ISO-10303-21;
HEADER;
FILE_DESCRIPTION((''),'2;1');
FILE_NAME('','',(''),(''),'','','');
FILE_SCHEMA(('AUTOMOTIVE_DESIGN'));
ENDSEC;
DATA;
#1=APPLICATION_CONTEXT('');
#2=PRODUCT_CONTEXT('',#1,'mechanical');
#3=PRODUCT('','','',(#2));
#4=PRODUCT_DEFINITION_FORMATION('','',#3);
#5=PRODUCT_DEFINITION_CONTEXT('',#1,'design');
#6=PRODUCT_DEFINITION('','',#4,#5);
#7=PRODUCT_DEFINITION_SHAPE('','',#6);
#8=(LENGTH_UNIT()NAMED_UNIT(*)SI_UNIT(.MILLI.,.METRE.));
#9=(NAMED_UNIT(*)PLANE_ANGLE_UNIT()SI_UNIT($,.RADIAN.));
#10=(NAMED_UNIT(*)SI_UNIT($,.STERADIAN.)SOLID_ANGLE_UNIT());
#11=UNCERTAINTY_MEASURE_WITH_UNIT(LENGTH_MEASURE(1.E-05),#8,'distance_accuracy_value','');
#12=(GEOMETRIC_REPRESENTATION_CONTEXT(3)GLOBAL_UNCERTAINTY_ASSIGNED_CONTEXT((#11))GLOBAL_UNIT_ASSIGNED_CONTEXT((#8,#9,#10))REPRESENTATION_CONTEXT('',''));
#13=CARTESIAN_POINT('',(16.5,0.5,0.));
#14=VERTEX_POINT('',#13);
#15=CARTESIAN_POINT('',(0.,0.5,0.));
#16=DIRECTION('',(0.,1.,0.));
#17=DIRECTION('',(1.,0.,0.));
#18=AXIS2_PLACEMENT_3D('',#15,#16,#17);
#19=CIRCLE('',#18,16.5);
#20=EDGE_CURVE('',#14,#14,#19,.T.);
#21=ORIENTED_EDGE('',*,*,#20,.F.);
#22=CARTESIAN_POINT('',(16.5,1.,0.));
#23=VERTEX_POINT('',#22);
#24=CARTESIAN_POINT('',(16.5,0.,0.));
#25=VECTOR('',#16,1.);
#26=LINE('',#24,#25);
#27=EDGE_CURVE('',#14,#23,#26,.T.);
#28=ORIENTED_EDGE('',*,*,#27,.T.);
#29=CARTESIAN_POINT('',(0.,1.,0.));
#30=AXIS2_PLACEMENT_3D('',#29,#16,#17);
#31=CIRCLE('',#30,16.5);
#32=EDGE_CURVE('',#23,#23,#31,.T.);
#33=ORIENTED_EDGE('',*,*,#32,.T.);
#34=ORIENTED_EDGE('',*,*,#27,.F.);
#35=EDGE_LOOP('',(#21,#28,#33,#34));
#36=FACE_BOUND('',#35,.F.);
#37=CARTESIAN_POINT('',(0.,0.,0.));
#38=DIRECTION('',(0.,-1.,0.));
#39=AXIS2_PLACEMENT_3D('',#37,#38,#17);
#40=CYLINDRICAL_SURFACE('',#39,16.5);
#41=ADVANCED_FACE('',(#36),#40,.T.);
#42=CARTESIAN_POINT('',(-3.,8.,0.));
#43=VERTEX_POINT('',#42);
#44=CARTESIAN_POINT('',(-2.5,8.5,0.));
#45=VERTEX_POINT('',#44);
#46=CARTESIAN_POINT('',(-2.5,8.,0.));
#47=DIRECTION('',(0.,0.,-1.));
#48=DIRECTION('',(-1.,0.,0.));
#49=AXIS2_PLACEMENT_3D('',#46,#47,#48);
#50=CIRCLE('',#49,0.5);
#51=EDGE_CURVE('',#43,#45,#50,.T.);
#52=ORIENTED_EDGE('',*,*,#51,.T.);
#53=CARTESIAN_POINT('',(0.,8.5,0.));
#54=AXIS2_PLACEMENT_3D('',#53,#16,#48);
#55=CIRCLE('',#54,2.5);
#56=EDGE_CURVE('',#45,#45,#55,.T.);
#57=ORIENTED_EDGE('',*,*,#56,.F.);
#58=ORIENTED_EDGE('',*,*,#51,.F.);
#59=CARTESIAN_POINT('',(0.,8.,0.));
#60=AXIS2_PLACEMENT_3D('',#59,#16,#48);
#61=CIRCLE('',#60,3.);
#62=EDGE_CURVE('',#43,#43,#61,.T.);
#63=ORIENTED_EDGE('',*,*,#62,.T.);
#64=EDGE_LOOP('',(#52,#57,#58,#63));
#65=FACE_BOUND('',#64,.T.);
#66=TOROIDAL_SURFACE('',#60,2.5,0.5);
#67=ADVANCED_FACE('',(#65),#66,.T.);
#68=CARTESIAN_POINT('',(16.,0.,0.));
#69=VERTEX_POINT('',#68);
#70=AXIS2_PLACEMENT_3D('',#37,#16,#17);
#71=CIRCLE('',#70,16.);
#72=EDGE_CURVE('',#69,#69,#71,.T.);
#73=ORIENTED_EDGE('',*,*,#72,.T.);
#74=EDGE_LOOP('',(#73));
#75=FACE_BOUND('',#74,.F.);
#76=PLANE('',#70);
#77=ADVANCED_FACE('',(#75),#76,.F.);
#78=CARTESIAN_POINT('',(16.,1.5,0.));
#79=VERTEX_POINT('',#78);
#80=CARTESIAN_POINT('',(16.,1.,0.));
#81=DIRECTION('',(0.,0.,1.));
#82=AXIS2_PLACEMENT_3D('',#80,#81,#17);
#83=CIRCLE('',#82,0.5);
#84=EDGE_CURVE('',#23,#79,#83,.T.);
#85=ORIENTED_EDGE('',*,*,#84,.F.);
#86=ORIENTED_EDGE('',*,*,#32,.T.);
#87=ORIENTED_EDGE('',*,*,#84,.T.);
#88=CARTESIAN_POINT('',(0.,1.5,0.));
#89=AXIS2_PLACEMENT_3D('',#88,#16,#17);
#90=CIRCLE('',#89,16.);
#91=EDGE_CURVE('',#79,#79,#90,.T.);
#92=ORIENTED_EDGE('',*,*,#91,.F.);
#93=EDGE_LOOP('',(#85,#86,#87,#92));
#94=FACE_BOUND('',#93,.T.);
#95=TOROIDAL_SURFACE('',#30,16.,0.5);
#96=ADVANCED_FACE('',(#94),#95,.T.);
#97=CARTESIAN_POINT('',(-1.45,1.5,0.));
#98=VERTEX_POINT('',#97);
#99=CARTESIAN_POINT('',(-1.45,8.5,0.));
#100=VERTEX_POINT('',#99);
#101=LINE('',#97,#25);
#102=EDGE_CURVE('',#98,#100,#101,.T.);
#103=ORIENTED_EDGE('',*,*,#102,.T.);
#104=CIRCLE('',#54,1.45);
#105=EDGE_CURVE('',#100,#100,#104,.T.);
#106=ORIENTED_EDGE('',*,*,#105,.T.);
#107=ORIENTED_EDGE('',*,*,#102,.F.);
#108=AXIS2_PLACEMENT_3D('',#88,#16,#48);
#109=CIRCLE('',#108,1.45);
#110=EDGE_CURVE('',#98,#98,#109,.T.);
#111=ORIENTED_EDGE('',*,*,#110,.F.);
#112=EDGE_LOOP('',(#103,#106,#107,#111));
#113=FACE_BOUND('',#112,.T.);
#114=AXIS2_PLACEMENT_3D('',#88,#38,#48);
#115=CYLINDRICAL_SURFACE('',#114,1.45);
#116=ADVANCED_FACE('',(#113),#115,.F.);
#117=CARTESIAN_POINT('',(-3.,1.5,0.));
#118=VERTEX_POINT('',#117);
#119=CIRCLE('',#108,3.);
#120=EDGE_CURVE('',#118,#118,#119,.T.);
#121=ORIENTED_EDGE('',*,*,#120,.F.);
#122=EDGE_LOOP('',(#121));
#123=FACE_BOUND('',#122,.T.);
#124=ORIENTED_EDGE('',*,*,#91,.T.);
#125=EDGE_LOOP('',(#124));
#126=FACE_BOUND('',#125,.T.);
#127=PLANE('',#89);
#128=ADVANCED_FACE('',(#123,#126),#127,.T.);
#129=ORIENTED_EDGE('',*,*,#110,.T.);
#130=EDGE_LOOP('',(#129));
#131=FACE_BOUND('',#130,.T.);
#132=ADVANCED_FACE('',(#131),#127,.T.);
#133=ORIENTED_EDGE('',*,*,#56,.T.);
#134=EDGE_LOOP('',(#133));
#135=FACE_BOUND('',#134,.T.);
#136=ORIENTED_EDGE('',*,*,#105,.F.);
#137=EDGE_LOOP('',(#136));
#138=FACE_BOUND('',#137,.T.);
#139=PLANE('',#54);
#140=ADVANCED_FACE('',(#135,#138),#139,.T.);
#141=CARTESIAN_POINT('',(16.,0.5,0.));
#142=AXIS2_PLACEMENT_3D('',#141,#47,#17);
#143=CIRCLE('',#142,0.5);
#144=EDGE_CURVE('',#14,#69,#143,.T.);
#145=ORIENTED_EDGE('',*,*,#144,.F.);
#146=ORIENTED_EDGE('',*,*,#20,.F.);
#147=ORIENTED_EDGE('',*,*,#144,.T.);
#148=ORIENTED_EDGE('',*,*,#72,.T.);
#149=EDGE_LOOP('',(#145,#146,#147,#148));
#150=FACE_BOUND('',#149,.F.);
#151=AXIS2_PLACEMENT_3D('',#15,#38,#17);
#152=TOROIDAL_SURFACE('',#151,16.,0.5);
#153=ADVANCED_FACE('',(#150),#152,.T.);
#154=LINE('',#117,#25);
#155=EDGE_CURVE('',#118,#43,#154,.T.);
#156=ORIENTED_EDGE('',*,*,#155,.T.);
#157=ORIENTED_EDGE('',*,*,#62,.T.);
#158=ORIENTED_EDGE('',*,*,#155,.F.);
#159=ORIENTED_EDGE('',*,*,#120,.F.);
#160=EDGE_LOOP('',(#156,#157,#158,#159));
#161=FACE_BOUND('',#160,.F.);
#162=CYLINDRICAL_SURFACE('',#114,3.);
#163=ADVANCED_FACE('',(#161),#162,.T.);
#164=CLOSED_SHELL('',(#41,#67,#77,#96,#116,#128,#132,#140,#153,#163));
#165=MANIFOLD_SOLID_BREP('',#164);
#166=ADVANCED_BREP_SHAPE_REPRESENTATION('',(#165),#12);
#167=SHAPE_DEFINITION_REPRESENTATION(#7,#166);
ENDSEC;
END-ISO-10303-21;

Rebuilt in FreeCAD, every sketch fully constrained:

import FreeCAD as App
import Part
import Sketcher

V = App.Vector


def edges_at(feature, points):
    """Names of the edges that pass closest to the given points."""
    edges = feature.Shape.Edges
    near = lambda p: min(range(len(edges)), key=lambda i: edges[i].distToShape(Part.Vertex(*p))[0])
    return sorted({f"Edge{near(p) + 1}" for p in points})

doc = App.newDocument("Part")
body = doc.addObject("PartDesign::Body", "Body")

sketch1 = body.newObject("Sketcher::SketchObject", "Sketch")
sketch1.AttachmentSupport = (doc.getObject("XZ_Plane"), [""])
sketch1.MapMode = "FlatFace"
sketch1.addGeometry(Part.Circle(V(0, 0, 0), V(0, 0, 1), 16), False)
sketch1.addConstraint(Sketcher.Constraint("Coincident", 0, 3, -1, 1))
sketch1.addConstraint(Sketcher.Constraint("Diameter", 0, 33.0))
pad1 = body.newObject("PartDesign::Pad", "Pad")
pad1.Profile = sketch1
pad1.Length = 1.5
pad1.Reversed = True

sketch2 = body.newObject("Sketcher::SketchObject", "Sketch001")
sketch2.AttachmentSupport = (doc.getObject("XZ_Plane"), [""])
sketch2.MapMode = "FlatFace"
sketch2.AttachmentOffset = App.Placement(V(0, 0, -1.5), App.Rotation())
sketch2.addGeometry(Part.Circle(V(0, 0, 0), V(0, 0, 1), 3), False)
sketch2.addGeometry(Part.Circle(V(0, 0, 0), V(0, 0, 1), 1.4), False)
sketch2.addConstraint(Sketcher.Constraint("Coincident", 0, 3, -1, 1))
sketch2.addConstraint(Sketcher.Constraint("Coincident", 1, 3, -1, 1))
sketch2.addConstraint(Sketcher.Constraint("Diameter", 0, 6.0))
sketch2.addConstraint(Sketcher.Constraint("Diameter", 1, 2.9))
pad2 = body.newObject("PartDesign::Pad", "Pad001")
pad2.Profile = sketch2
pad2.Length = 7
pad2.Reversed = True
doc.recompute()

fillet = body.newObject("PartDesign::Fillet", "Fillet")
fillet.Base = (pad2, edges_at(pad2, [(-15.383, 0, 5.967), (-15.383, 1.5, 5.967), (2.797, 8.5, -1.085)]))
fillet.Radius = 0.5

doc.recompute()
